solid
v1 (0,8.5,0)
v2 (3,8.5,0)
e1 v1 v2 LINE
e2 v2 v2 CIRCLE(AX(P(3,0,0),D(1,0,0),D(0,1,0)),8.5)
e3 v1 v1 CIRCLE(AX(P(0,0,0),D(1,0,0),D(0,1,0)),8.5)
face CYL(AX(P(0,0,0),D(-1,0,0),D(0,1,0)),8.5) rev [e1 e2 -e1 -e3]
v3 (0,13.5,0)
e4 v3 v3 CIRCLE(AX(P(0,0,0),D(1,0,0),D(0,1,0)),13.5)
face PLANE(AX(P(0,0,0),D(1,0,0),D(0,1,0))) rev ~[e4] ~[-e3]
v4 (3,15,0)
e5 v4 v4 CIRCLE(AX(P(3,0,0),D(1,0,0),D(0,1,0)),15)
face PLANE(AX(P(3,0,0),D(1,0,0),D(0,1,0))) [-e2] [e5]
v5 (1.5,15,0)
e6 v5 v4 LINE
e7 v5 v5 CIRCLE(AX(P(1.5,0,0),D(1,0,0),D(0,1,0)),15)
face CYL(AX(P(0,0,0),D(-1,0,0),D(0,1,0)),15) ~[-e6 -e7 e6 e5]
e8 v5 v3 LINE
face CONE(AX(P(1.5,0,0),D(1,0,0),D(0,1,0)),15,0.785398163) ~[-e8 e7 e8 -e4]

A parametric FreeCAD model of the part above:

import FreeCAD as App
import Part
import Sketcher

V = App.Vector


def edges_at(feature, points):
    """Names of the edges that pass closest to the given points."""
    edges = feature.Shape.Edges
    near = lambda p: min(range(len(edges)), key=lambda i: edges[i].distToShape(Part.Vertex(*p))[0])
    return sorted({f"Edge{near(p) + 1}" for p in points})

doc = App.newDocument("Part")
body = doc.addObject("PartDesign::Body", "Body")

# Sketch on YZ plane
sketch1 = doc.addObject("Sketcher::SketchObject", "Sketch")
body.addObject(sketch1)
sketch1.AttachmentSupport = (doc.YZ_Plane, [""])
sketch1.MapMode = "FlatFace"
sketch1.addGeometry([
    Part.Circle(V(0, 0, 0), V(0, 0, 1), 15),
    Part.Circle(V(0, 0, 0), V(0, 0, 1), 8),
], False)
sketch1.addConstraint([
    Sketcher.Constraint("Coincident", 0, 3, -1, 1),
    Sketcher.Constraint("Coincident", 1, 3, -1, 1),
    Sketcher.Constraint("Diameter", 0, 30.0),
    Sketcher.Constraint("Diameter", 1, 17.0),
])
pad1 = doc.addObject("PartDesign::Pad", "Pad")
body.addObject(pad1)
pad1.Profile = sketch1
pad1.Length = 3
doc.recompute()

chamfer = doc.addObject("PartDesign::Chamfer", "Chamfer")
body.addObject(chamfer)
chamfer.Base = (pad1, edges_at(pad1, [(0, -15, 0)]))
chamfer.Size = 1.5

doc.recompute()
